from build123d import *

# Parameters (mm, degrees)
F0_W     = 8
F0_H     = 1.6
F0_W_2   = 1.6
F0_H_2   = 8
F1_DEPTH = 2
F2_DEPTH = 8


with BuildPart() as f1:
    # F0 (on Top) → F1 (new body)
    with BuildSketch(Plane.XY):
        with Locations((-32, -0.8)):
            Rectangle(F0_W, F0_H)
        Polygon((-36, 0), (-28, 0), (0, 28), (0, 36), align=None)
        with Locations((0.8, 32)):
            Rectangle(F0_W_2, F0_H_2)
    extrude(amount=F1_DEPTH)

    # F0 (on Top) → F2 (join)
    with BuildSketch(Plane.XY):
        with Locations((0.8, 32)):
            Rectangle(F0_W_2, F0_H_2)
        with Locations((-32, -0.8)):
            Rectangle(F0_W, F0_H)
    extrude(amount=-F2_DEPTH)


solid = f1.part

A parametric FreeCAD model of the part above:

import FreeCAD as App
import Part
import Sketcher
Q = App.Units.Quantity


def add_polygon(sketch, points):
    """Adds a closed chain of lines whose ends are joined by coincident constraints."""
    first, n = sketch.GeometryCount, len(points)
    for a, b in zip(points, points[1:] + points[:1]):
        sketch.addGeometry(Part.LineSegment(App.Vector(*a, 0), App.Vector(*b, 0)), False)
    for i in range(n):
        sketch.addConstraint(Sketcher.Constraint("Coincident", first + i, 2, first + (i + 1) % n, 1))

doc = App.newDocument("Part")
body = doc.addObject("PartDesign::Body", "Body")

# Sketch on XY plane
sketch1 = body.newObject("Sketcher::SketchObject", "Sketch")
sketch1.AttachmentSupport = (doc.getObject("XY_Plane"), [""])
sketch1.MapMode = "FlatFace"
add_polygon(sketch1, [(-36, 0), (-36, -1.6), (-28, -1.6), (-28, 0), (0, 28), (1.6, 28), (1.6, 36), (0, 36)])  # lines 0-7
sketch1.addConstraint(Sketcher.Constraint("Vertical", 0))
sketch1.addConstraint(Sketcher.Constraint("Horizontal", 1))
sketch1.addConstraint(Sketcher.Constraint("Vertical", 2))
sketch1.addConstraint(Sketcher.Constraint("Horizontal", 4))
sketch1.addConstraint(Sketcher.Constraint("Vertical", 5))
sketch1.addConstraint(Sketcher.Constraint("Horizontal", 6))
sketch1.addConstraint(Sketcher.Constraint("PointOnObject", 2, 2, -1))
sketch1.addConstraint(Sketcher.Constraint("PointOnObject", 3, 2, -2))
sketch1.addConstraint(Sketcher.Constraint("PointOnObject", 6, 2, -2))
sketch1.addConstraint(Sketcher.Constraint("PointOnObject", 7, 2, -1))
sketch1.addConstraint(Sketcher.Constraint("Parallel", 3, 7))
sketch1.addConstraint(Sketcher.Constraint("Equal", 6, 0))
sketch1.addConstraint(Sketcher.Constraint("Equal", 1, 5))
sketch1.addConstraint(Sketcher.Constraint("DistanceX", 1, 1, 1, 2, Q("8 mm")))
sketch1.addConstraint(Sketcher.Constraint("DistanceX", 4, 1, 4, 2, Q("1.6 mm")))
sketch1.addConstraint(Sketcher.Constraint("DistanceX", 0, 2, -1, 1, Q("36 mm")))
pad1 = body.newObject("PartDesign::Pad", "Pad")
pad1.Profile = sketch1
pad1.Length = 2

# Sketch on XY plane
sketch2 = body.newObject("Sketcher::SketchObject", "Sketch001")
sketch2.AttachmentSupport = (doc.getObject("XY_Plane"), [""])
sketch2.MapMode = "FlatFace"
add_polygon(sketch2, [(0, 36), (0, 28), (1.6, 28), (1.6, 36)])  # lines 0-3
add_polygon(sketch2, [(-36, 0), (-36, -1.6), (-28, -1.6), (-28, 0)])  # lines 4-7
sketch2.addConstraint(Sketcher.Constraint("Vertical", 0))
sketch2.addConstraint(Sketcher.Constraint("Horizontal", 1))
sketch2.addConstraint(Sketcher.Constraint("Vertical", 2))
sketch2.addConstraint(Sketcher.Constraint("Horizontal", 3))
sketch2.addConstraint(Sketcher.Constraint("Vertical", 4))
sketch2.addConstraint(Sketcher.Constraint("Horizontal", 5))
sketch2.addConstraint(Sketcher.Constraint("Vertical", 6))
sketch2.addConstraint(Sketcher.Constraint("Horizontal", 7))
sketch2.addConstraint(Sketcher.Constraint("PointOnObject", 0, 2, -2))
sketch2.addConstraint(Sketcher.Constraint("PointOnObject", 6, 2, -1))
sketch2.addConstraint(Sketcher.Constraint("Equal", 7, 0))
sketch2.addConstraint(Sketcher.Constraint("Equal", 3, 4))
sketch2.addConstraint(Sketcher.Constraint("DistanceX", 5, 1, 5, 2, Q("8 mm")))
sketch2.addConstraint(Sketcher.Constraint("DistanceX", 1, 1, 1, 2, Q("1.6 mm")))
sketch2.addConstraint(Sketcher.Constraint("DistanceY", -1, 1, 0, 2, Q("28 mm")))
sketch2.addConstraint(Sketcher.Constraint("DistanceX", 4, 2, -1, 1, Q("36 mm")))
pad2 = body.newObject("PartDesign::Pad", "Pad001")
pad2.Profile = sketch2
pad2.Length = 8
pad2.Reversed = True

doc.recompute()
